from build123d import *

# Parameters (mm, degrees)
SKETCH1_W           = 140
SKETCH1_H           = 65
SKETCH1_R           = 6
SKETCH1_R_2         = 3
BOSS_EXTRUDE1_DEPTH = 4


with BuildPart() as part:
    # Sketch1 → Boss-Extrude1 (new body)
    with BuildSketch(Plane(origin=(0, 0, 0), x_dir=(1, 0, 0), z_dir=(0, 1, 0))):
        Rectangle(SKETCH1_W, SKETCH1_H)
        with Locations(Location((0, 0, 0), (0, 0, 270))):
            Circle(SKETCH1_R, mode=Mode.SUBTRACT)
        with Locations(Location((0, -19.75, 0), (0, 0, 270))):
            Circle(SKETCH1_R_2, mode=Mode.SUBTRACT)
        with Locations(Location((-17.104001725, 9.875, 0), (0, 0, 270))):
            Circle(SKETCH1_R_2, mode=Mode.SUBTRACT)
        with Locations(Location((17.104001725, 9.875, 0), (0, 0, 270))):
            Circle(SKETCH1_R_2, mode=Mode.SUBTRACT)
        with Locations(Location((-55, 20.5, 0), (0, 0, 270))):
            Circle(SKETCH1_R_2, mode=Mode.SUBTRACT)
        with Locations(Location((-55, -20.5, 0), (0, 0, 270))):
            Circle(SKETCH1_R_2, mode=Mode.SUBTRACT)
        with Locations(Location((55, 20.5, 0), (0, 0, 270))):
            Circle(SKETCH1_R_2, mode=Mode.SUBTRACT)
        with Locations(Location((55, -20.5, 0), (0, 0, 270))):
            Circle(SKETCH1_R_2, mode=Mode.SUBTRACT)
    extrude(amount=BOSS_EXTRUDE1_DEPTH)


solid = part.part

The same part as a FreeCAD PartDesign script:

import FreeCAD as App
import Part
import Sketcher

doc = App.newDocument("Part")
body = doc.addObject("PartDesign::Body", "Body")

# Sketch on XZ plane
sketch1 = body.newObject("Sketcher::SketchObject", "Sketch")
sketch1.AttachmentSupport = (doc.getObject("XZ_Plane"), [""])
sketch1.MapMode = "FlatFace"
sketch1.addGeometry(Part.LineSegment(App.Vector(-70, -32.5, 0), App.Vector(-70, 32.5, 0)), False)
sketch1.addGeometry(Part.LineSegment(App.Vector(-70, 32.5, 0), App.Vector(70, 32.5, 0)), False)
sketch1.addGeometry(Part.LineSegment(App.Vector(70, 32.5, 0), App.Vector(70, -32.5, 0)), False)
sketch1.addGeometry(Part.LineSegment(App.Vector(70, -32.5, 0), App.Vector(-70, -32.5, 0)), False)
sketch1.addGeometry(Part.Circle(App.Vector(-55, 20.5, 0), App.Vector(0, 0, 1), 3), False)
sketch1.addGeometry(Part.Circle(App.Vector(0, 19.8, 0), App.Vector(0, 0, 1), 3), False)
sketch1.addGeometry(Part.Circle(App.Vector(55, 20.5, 0), App.Vector(0, 0, 1), 3), False)
sketch1.addGeometry(Part.Circle(App.Vector(-17.1, -9.9, 0), App.Vector(0, 0, 1), 3), False)
sketch1.addGeometry(Part.Circle(App.Vector(-55, -20.5, 0), App.Vector(0, 0, 1), 3), False)
sketch1.addGeometry(Part.Circle(App.Vector(0, 0, 0), App.Vector(0, 0, 1), 6), False)
sketch1.addGeometry(Part.Circle(App.Vector(17.1, -9.9, 0), App.Vector(0, 0, 1), 3), False)
sketch1.addGeometry(Part.Circle(App.Vector(55, -20.5, 0), App.Vector(0, 0, 1), 3), False)
sketch1.addConstraint(Sketcher.Constraint("Coincident", 0, 2, 1, 1))
sketch1.addConstraint(Sketcher.Constraint("Coincident", 1, 2, 2, 1))
sketch1.addConstraint(Sketcher.Constraint("Coincident", 2, 2, 3, 1))
sketch1.addConstraint(Sketcher.Constraint("Coincident", 3, 2, 0, 1))
sketch1.addConstraint(Sketcher.Constraint("Vertical", 0))
sketch1.addConstraint(Sketcher.Constraint("Horizontal", 1))
sketch1.addConstraint(Sketcher.Constraint("Vertical", 2))
sketch1.addConstraint(Sketcher.Constraint("Horizontal", 3))
sketch1.addConstraint(Sketcher.Constraint("Coincident", 9, 3, -1, 1))
sketch1.addConstraint(Sketcher.Constraint("Equal", 4, 5))
sketch1.addConstraint(Sketcher.Constraint("Equal", 5, 6))
sketch1.addConstraint(Sketcher.Constraint("Equal", 6, 7))
sketch1.addConstraint(Sketcher.Constraint("Equal", 7, 8))
sketch1.addConstraint(Sketcher.Constraint("Equal", 8, 10))
sketch1.addConstraint(Sketcher.Constraint("Equal", 10, 11))
sketch1.addConstraint(Sketcher.Constraint("Symmetric", 6, 3, 8, 3, -1, 1))
sketch1.addConstraint(Sketcher.Constraint("Symmetric", 4, 3, 11, 3, -1, 1))
sketch1.addConstraint(Sketcher.Constraint("Symmetric", 0, 2, 2, 2, -1, 1))
sketch1.addConstraint(Sketcher.Constraint("Symmetric", 4, 3, 6, 3, -2))
sketch1.addConstraint(Sketcher.Constraint("Symmetric", 7, 3, 10, 3, -2))
sketch1.addConstraint(Sketcher.Constraint("PointOnObject", 5, 3, -2))
sketch1.addConstraint(Sketcher.Constraint("Diameter", 4, 6.0))
sketch1.addConstraint(Sketcher.Constraint("Diameter", 9, 12.0))
sketch1.addConstraint(Sketcher.Constraint("DistanceX", 1, 1, 1, 2, 140.0))
sketch1.addConstraint(Sketcher.Constraint("DistanceY", 0, 1, 0, 2, 65.0))
sketch1.addConstraint(Sketcher.Constraint("DistanceX", 4, 3, -1, 1, 55.0))
sketch1.addConstraint(Sketcher.Constraint("DistanceY", 8, 3, 4, 3, 41.0))
sketch1.addConstraint(Sketcher.Constraint("DistanceY", -1, 1, 5, 3, 19.75))
sketch1.addConstraint(Sketcher.Constraint("DistanceX", 7, 3, -1, 1, 17.104002))
sketch1.addConstraint(Sketcher.Constraint("DistanceY", 7, 3, -1, 1, 9.875))
pad1 = body.newObject("PartDesign::Pad", "Pad")
pad1.Profile = sketch1
pad1.Length = 4
pad1.Reversed = True

doc.recompute()
